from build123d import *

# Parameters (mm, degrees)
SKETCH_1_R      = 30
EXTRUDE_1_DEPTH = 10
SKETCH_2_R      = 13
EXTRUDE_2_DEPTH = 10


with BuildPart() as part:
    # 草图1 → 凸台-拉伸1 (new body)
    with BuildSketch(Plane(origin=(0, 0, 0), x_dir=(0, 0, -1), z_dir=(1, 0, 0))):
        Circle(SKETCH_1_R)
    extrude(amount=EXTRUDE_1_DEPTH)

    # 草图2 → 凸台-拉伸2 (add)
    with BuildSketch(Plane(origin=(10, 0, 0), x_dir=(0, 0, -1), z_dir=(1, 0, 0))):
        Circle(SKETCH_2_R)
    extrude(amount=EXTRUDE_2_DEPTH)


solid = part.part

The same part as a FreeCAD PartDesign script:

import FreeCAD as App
import Part
import Sketcher

doc = App.newDocument("Part")
body = doc.addObject("PartDesign::Body", "Body")

sketch1 = body.newObject("Sketcher::SketchObject", "Sketch")
sketch1.AttachmentSupport = (doc.getObject("YZ_Plane"), [""])
sketch1.MapMode = "FlatFace"
sketch1.addGeometry(Part.Circle(App.Vector(0, 0, 0), App.Vector(0, 0, 1), 30), False)
sketch1.addConstraint([
    Sketcher.Constraint("Coincident", 0, 3, -1, 1),
    Sketcher.Constraint("Diameter", 0, 60.0),
])
pad1 = body.newObject("PartDesign::Pad", "Pad")
pad1.Profile = sketch1
pad1.Length = 10

sketch2 = body.newObject("Sketcher::SketchObject", "Sketch001")
sketch2.AttachmentSupport = (doc.getObject("YZ_Plane"), [""])
sketch2.MapMode = "FlatFace"
sketch2.AttachmentOffset = App.Placement(App.Vector(0, 0, 10), App.Rotation())
sketch2.addGeometry(Part.Circle(App.Vector(0, 0, 0), App.Vector(0, 0, 1), 13), False)
sketch2.addConstraint([
    Sketcher.Constraint("Coincident", 0, 3, -1, 1),
    Sketcher.Constraint("Diameter", 0, 26.0),
])
pad2 = body.newObject("PartDesign::Pad", "Pad001")
pad2.Profile = sketch2
pad2.Length = 10

doc.recompute()
